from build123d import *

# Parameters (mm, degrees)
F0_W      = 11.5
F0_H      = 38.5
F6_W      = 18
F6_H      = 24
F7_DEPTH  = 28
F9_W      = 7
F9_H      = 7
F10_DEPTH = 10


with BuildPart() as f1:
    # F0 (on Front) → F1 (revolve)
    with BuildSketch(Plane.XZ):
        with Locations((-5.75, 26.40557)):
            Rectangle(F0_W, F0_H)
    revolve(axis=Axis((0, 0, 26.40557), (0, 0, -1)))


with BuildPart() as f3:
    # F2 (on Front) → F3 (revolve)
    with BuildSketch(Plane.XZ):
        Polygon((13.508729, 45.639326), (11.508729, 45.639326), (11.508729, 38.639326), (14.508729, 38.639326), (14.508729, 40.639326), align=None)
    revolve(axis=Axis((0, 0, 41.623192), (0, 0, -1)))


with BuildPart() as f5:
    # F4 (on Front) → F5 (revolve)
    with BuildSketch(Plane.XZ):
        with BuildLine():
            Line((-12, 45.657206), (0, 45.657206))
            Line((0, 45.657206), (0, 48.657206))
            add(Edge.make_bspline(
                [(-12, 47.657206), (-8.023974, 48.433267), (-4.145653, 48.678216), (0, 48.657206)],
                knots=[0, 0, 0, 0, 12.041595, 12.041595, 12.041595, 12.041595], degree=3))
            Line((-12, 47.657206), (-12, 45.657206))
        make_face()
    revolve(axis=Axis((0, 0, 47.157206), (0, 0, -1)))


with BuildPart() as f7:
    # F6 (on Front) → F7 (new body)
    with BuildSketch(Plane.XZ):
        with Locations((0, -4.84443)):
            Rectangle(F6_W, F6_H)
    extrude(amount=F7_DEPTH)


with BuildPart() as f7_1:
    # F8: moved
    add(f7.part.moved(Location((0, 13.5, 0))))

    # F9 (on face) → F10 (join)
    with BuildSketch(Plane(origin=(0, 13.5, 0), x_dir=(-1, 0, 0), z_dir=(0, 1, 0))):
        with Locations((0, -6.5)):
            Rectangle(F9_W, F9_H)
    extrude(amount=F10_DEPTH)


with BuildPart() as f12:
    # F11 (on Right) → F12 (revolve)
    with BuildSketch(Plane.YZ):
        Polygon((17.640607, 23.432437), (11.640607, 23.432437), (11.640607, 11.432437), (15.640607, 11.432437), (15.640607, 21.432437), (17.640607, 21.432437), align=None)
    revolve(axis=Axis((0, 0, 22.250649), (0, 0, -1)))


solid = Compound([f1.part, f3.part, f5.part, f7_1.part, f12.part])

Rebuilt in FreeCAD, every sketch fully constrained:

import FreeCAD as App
import Part
import Sketcher
from FreeCAD import Vector
Q = App.Units.Quantity


def add_polygon(sketch, points):
    """Adds a closed chain of lines whose ends are joined by coincident constraints."""
    first, n = sketch.GeometryCount, len(points)
    for a, b in zip(points, points[1:] + points[:1]):
        sketch.addGeometry(Part.LineSegment(App.Vector(*a, 0), App.Vector(*b, 0)), False)
    for i in range(n):
        sketch.addConstraint(Sketcher.Constraint("Coincident", first + i, 2, first + (i + 1) % n, 1))

doc = App.newDocument("Part")
body = doc.addObject("PartDesign::Body", "Body")

sketch1 = body.newObject("Sketcher::SketchObject", "Sketch")
sketch1.AttachmentSupport = (doc.getObject("XZ_Plane"), [""])
sketch1.MapMode = "FlatFace"
add_polygon(sketch1, [(-11.5, 45.65557), (-11.5, 7.15557), (0, 7.15557), (0, 45.65557)])
sketch1.addConstraint([
    Sketcher.Constraint("Vertical", 0),
    Sketcher.Constraint("Horizontal", 1),
    Sketcher.Constraint("Vertical", 2),
    Sketcher.Constraint("Horizontal", 3),
    Sketcher.Constraint("PointOnObject", 1, 2, -2),
    Sketcher.Constraint("DistanceX", 1, 1, 1, 2, Q("11.5 mm")),
    Sketcher.Constraint("DistanceY", 0, 2, 0, 1, Q("38.5 mm")),
    Sketcher.Constraint("DistanceY", -1, 1, 0, 2, Q("7.15557 mm")),
])
revolution = body.newObject("PartDesign::Revolution", "Revolution")
revolution.Profile = sketch1
revolution.ReferenceAxis = (sketch1, ["V_Axis"])
revolution.Angle = 360
body2 = doc.addObject("PartDesign::Body", "Body001")

sketch2 = body2.newObject("Sketcher::SketchObject", "Sketch001")
sketch2.AttachmentSupport = (doc.getObject("XZ_Plane001"), [""])
sketch2.MapMode = "FlatFace"
add_polygon(sketch2, [(13.508729, 45.639326), (11.508729, 45.639326), (11.508729, 38.639326), (14.508729, 38.639326), (14.508729, 40.639326)])
sketch2.addConstraint([
    Sketcher.Constraint("Horizontal", 0),
    Sketcher.Constraint("Vertical", 1),
    Sketcher.Constraint("Horizontal", 2),
    Sketcher.Constraint("Vertical", 3),
    Sketcher.Constraint("Equal", 0, 3),
    Sketcher.Constraint("DistanceX", 0, 2, 0, 1, Q("2 mm")),
    Sketcher.Constraint("DistanceX", 2, 1, 2, 2, Q("3 mm")),
    Sketcher.Constraint("DistanceY", 1, 2, 1, 1, Q("7 mm")),
    Sketcher.Constraint("DistanceX", -1, 1, 0, 2, Q("11.508729 mm")),
    Sketcher.Constraint("DistanceY", -1, 1, 0, 2, Q("45.639326 mm")),
])
revolution2 = body2.newObject("PartDesign::Revolution", "Revolution001")
revolution2.Profile = sketch2
revolution2.ReferenceAxis = (sketch2, ["V_Axis"])
revolution2.Angle = 360
body3 = doc.addObject("PartDesign::Body", "Body002")

sketch3 = body3.newObject("Sketcher::SketchObject", "Sketch002")
sketch3.AttachmentSupport = (doc.getObject("XZ_Plane002"), [""])
sketch3.MapMode = "FlatFace"
sketch3.addGeometry([
    Part.LineSegment(Vector(-12, 45.657206, 0), Vector(0, 45.657206, 0)),
    Part.LineSegment(Vector(0, 45.657206, 0), Vector(0, 48.657206, 0)),
    Part.BSplineCurve([Vector(-12, 47.657206, 0), Vector(-8.023974, 48.433267, 0), Vector(-4.145653, 48.678216, 0), Vector(0, 48.657206, 0)], [4, 4], [0, 12.041595], False, 3, [1, 1, 1, 1], False),
    Part.LineSegment(Vector(-12, 47.657206, 0), Vector(-12, 45.657206, 0)),
], False)
sketch3.addConstraint([
    Sketcher.Constraint("Block", 2),
    Sketcher.Constraint("Coincident", 0, 2, 1, 1),
    Sketcher.Constraint("Coincident", 1, 2, 2, 2),
    Sketcher.Constraint("Coincident", 2, 1, 3, 1),
    Sketcher.Constraint("Coincident", 3, 2, 0, 1),
    Sketcher.Constraint("Horizontal", 0),
    Sketcher.Constraint("Vertical", 1),
    Sketcher.Constraint("Vertical", 3),
    Sketcher.Constraint("DistanceY", 1, 1, 1, 2, Q("3 mm")),
])
revolution3 = body3.newObject("PartDesign::Revolution", "Revolution002")
revolution3.Profile = sketch3
revolution3.ReferenceAxis = (sketch3, ["V_Axis"])
revolution3.Angle = 360
body4 = doc.addObject("PartDesign::Body", "Body003")

sketch4 = body4.newObject("Sketcher::SketchObject", "Sketch003")
sketch4.AttachmentSupport = (doc.getObject("XZ_Plane003"), [""])
sketch4.MapMode = "FlatFace"
add_polygon(sketch4, [(-9, 7.15557), (-9, -16.84443), (9, -16.84443), (9, 7.15557)])
sketch4.addConstraint([
    Sketcher.Constraint("Vertical", 0),
    Sketcher.Constraint("Horizontal", 1),
    Sketcher.Constraint("Vertical", 2),
    Sketcher.Constraint("Horizontal", 3),
    Sketcher.Constraint("DistanceX", 1, 1, 1, 2, Q("18 mm")),
    Sketcher.Constraint("DistanceY", 0, 2, 0, 1, Q("24 mm")),
    Sketcher.Constraint("DistanceX", 0, 2, -1, 1, Q("9 mm")),
    Sketcher.Constraint("DistanceY", 0, 2, -1, 1, Q("16.84443 mm")),
])
pad1 = body4.newObject("PartDesign::Pad", "Pad")
pad1.Profile = sketch4
pad1.Length = 28
body5 = doc.addObject("PartDesign::Body", "Body004")
doc.recompute()

body4.Placement = App.Placement(Vector(0, 13.5, 0), App.Rotation(Vector(0, 0, 1), 0))
boolean = body5.newObject("PartDesign::Boolean", "Boolean")
boolean.Type = "Fuse"
boolean.addObjects([body4])

sketch5 = body5.newObject("Sketcher::SketchObject", "Sketch004")
sketch5.AttachmentSupport = (doc.getObject("XZ_Plane004"), [""])
sketch5.MapMode = "FlatFace"
sketch5.AttachmentOffset = App.Placement(Vector(0, 0, -13.5), App.Rotation())
add_polygon(sketch5, [(3.5, -3), (3.5, -10), (-3.5, -10), (-3.5, -3)])
sketch5.addConstraint([
    Sketcher.Constraint("Vertical", 0),
    Sketcher.Constraint("Horizontal", 1),
    Sketcher.Constraint("Vertical", 2),
    Sketcher.Constraint("Horizontal", 3),
    Sketcher.Constraint("Equal", 3, 0),
    Sketcher.Constraint("DistanceX", 1, 2, 1, 1, Q("7 mm")),
    Sketcher.Constraint("DistanceY", 0, 2, -1, 1, Q("10 mm")),
    Sketcher.Constraint("DistanceX", -1, 1, 0, 2, Q("3.5 mm")),
])
pad2 = body5.newObject("PartDesign::Pad", "Pad001")
pad2.Profile = sketch5
pad2.Length = 10
pad2.Reversed = True
body6 = doc.addObject("PartDesign::Body", "Body005")

sketch6 = body6.newObject("Sketcher::SketchObject", "Sketch005")
sketch6.AttachmentSupport = (doc.getObject("YZ_Plane005"), [""])
sketch6.MapMode = "FlatFace"
add_polygon(sketch6, [(17.640607, 23.432437), (11.640607, 23.432437), (11.640607, 11.432437), (15.640607, 11.432437), (15.640607, 21.432437), (17.640607, 21.432437)])
sketch6.addConstraint([
    Sketcher.Constraint("Horizontal", 0),
    Sketcher.Constraint("Vertical", 1),
    Sketcher.Constraint("Horizontal", 2),
    Sketcher.Constraint("Vertical", 3),
    Sketcher.Constraint("Horizontal", 4),
    Sketcher.Constraint("Vertical", 5),
    Sketcher.Constraint("Equal", 4, 5),
    Sketcher.Constraint("DistanceX", 0, 2, 0, 1, Q("6 mm")),
    Sketcher.Constraint("DistanceX", 2, 1, 2, 2, Q("4 mm")),
    Sketcher.Constraint("DistanceY", 1, 2, 1, 1, Q("12 mm")),
    Sketcher.Constraint("DistanceX", -1, 1, 0, 2, Q("11.640607 mm")),
    Sketcher.Constraint("DistanceY", -1, 1, 0, 2, Q("23.432437 mm")),
])
revolution4 = body6.newObject("PartDesign::Revolution", "Revolution003")
revolution4.Profile = sketch6
revolution4.ReferenceAxis = (sketch6, ["V_Axis"])
revolution4.Angle = 360

doc.recompute()
